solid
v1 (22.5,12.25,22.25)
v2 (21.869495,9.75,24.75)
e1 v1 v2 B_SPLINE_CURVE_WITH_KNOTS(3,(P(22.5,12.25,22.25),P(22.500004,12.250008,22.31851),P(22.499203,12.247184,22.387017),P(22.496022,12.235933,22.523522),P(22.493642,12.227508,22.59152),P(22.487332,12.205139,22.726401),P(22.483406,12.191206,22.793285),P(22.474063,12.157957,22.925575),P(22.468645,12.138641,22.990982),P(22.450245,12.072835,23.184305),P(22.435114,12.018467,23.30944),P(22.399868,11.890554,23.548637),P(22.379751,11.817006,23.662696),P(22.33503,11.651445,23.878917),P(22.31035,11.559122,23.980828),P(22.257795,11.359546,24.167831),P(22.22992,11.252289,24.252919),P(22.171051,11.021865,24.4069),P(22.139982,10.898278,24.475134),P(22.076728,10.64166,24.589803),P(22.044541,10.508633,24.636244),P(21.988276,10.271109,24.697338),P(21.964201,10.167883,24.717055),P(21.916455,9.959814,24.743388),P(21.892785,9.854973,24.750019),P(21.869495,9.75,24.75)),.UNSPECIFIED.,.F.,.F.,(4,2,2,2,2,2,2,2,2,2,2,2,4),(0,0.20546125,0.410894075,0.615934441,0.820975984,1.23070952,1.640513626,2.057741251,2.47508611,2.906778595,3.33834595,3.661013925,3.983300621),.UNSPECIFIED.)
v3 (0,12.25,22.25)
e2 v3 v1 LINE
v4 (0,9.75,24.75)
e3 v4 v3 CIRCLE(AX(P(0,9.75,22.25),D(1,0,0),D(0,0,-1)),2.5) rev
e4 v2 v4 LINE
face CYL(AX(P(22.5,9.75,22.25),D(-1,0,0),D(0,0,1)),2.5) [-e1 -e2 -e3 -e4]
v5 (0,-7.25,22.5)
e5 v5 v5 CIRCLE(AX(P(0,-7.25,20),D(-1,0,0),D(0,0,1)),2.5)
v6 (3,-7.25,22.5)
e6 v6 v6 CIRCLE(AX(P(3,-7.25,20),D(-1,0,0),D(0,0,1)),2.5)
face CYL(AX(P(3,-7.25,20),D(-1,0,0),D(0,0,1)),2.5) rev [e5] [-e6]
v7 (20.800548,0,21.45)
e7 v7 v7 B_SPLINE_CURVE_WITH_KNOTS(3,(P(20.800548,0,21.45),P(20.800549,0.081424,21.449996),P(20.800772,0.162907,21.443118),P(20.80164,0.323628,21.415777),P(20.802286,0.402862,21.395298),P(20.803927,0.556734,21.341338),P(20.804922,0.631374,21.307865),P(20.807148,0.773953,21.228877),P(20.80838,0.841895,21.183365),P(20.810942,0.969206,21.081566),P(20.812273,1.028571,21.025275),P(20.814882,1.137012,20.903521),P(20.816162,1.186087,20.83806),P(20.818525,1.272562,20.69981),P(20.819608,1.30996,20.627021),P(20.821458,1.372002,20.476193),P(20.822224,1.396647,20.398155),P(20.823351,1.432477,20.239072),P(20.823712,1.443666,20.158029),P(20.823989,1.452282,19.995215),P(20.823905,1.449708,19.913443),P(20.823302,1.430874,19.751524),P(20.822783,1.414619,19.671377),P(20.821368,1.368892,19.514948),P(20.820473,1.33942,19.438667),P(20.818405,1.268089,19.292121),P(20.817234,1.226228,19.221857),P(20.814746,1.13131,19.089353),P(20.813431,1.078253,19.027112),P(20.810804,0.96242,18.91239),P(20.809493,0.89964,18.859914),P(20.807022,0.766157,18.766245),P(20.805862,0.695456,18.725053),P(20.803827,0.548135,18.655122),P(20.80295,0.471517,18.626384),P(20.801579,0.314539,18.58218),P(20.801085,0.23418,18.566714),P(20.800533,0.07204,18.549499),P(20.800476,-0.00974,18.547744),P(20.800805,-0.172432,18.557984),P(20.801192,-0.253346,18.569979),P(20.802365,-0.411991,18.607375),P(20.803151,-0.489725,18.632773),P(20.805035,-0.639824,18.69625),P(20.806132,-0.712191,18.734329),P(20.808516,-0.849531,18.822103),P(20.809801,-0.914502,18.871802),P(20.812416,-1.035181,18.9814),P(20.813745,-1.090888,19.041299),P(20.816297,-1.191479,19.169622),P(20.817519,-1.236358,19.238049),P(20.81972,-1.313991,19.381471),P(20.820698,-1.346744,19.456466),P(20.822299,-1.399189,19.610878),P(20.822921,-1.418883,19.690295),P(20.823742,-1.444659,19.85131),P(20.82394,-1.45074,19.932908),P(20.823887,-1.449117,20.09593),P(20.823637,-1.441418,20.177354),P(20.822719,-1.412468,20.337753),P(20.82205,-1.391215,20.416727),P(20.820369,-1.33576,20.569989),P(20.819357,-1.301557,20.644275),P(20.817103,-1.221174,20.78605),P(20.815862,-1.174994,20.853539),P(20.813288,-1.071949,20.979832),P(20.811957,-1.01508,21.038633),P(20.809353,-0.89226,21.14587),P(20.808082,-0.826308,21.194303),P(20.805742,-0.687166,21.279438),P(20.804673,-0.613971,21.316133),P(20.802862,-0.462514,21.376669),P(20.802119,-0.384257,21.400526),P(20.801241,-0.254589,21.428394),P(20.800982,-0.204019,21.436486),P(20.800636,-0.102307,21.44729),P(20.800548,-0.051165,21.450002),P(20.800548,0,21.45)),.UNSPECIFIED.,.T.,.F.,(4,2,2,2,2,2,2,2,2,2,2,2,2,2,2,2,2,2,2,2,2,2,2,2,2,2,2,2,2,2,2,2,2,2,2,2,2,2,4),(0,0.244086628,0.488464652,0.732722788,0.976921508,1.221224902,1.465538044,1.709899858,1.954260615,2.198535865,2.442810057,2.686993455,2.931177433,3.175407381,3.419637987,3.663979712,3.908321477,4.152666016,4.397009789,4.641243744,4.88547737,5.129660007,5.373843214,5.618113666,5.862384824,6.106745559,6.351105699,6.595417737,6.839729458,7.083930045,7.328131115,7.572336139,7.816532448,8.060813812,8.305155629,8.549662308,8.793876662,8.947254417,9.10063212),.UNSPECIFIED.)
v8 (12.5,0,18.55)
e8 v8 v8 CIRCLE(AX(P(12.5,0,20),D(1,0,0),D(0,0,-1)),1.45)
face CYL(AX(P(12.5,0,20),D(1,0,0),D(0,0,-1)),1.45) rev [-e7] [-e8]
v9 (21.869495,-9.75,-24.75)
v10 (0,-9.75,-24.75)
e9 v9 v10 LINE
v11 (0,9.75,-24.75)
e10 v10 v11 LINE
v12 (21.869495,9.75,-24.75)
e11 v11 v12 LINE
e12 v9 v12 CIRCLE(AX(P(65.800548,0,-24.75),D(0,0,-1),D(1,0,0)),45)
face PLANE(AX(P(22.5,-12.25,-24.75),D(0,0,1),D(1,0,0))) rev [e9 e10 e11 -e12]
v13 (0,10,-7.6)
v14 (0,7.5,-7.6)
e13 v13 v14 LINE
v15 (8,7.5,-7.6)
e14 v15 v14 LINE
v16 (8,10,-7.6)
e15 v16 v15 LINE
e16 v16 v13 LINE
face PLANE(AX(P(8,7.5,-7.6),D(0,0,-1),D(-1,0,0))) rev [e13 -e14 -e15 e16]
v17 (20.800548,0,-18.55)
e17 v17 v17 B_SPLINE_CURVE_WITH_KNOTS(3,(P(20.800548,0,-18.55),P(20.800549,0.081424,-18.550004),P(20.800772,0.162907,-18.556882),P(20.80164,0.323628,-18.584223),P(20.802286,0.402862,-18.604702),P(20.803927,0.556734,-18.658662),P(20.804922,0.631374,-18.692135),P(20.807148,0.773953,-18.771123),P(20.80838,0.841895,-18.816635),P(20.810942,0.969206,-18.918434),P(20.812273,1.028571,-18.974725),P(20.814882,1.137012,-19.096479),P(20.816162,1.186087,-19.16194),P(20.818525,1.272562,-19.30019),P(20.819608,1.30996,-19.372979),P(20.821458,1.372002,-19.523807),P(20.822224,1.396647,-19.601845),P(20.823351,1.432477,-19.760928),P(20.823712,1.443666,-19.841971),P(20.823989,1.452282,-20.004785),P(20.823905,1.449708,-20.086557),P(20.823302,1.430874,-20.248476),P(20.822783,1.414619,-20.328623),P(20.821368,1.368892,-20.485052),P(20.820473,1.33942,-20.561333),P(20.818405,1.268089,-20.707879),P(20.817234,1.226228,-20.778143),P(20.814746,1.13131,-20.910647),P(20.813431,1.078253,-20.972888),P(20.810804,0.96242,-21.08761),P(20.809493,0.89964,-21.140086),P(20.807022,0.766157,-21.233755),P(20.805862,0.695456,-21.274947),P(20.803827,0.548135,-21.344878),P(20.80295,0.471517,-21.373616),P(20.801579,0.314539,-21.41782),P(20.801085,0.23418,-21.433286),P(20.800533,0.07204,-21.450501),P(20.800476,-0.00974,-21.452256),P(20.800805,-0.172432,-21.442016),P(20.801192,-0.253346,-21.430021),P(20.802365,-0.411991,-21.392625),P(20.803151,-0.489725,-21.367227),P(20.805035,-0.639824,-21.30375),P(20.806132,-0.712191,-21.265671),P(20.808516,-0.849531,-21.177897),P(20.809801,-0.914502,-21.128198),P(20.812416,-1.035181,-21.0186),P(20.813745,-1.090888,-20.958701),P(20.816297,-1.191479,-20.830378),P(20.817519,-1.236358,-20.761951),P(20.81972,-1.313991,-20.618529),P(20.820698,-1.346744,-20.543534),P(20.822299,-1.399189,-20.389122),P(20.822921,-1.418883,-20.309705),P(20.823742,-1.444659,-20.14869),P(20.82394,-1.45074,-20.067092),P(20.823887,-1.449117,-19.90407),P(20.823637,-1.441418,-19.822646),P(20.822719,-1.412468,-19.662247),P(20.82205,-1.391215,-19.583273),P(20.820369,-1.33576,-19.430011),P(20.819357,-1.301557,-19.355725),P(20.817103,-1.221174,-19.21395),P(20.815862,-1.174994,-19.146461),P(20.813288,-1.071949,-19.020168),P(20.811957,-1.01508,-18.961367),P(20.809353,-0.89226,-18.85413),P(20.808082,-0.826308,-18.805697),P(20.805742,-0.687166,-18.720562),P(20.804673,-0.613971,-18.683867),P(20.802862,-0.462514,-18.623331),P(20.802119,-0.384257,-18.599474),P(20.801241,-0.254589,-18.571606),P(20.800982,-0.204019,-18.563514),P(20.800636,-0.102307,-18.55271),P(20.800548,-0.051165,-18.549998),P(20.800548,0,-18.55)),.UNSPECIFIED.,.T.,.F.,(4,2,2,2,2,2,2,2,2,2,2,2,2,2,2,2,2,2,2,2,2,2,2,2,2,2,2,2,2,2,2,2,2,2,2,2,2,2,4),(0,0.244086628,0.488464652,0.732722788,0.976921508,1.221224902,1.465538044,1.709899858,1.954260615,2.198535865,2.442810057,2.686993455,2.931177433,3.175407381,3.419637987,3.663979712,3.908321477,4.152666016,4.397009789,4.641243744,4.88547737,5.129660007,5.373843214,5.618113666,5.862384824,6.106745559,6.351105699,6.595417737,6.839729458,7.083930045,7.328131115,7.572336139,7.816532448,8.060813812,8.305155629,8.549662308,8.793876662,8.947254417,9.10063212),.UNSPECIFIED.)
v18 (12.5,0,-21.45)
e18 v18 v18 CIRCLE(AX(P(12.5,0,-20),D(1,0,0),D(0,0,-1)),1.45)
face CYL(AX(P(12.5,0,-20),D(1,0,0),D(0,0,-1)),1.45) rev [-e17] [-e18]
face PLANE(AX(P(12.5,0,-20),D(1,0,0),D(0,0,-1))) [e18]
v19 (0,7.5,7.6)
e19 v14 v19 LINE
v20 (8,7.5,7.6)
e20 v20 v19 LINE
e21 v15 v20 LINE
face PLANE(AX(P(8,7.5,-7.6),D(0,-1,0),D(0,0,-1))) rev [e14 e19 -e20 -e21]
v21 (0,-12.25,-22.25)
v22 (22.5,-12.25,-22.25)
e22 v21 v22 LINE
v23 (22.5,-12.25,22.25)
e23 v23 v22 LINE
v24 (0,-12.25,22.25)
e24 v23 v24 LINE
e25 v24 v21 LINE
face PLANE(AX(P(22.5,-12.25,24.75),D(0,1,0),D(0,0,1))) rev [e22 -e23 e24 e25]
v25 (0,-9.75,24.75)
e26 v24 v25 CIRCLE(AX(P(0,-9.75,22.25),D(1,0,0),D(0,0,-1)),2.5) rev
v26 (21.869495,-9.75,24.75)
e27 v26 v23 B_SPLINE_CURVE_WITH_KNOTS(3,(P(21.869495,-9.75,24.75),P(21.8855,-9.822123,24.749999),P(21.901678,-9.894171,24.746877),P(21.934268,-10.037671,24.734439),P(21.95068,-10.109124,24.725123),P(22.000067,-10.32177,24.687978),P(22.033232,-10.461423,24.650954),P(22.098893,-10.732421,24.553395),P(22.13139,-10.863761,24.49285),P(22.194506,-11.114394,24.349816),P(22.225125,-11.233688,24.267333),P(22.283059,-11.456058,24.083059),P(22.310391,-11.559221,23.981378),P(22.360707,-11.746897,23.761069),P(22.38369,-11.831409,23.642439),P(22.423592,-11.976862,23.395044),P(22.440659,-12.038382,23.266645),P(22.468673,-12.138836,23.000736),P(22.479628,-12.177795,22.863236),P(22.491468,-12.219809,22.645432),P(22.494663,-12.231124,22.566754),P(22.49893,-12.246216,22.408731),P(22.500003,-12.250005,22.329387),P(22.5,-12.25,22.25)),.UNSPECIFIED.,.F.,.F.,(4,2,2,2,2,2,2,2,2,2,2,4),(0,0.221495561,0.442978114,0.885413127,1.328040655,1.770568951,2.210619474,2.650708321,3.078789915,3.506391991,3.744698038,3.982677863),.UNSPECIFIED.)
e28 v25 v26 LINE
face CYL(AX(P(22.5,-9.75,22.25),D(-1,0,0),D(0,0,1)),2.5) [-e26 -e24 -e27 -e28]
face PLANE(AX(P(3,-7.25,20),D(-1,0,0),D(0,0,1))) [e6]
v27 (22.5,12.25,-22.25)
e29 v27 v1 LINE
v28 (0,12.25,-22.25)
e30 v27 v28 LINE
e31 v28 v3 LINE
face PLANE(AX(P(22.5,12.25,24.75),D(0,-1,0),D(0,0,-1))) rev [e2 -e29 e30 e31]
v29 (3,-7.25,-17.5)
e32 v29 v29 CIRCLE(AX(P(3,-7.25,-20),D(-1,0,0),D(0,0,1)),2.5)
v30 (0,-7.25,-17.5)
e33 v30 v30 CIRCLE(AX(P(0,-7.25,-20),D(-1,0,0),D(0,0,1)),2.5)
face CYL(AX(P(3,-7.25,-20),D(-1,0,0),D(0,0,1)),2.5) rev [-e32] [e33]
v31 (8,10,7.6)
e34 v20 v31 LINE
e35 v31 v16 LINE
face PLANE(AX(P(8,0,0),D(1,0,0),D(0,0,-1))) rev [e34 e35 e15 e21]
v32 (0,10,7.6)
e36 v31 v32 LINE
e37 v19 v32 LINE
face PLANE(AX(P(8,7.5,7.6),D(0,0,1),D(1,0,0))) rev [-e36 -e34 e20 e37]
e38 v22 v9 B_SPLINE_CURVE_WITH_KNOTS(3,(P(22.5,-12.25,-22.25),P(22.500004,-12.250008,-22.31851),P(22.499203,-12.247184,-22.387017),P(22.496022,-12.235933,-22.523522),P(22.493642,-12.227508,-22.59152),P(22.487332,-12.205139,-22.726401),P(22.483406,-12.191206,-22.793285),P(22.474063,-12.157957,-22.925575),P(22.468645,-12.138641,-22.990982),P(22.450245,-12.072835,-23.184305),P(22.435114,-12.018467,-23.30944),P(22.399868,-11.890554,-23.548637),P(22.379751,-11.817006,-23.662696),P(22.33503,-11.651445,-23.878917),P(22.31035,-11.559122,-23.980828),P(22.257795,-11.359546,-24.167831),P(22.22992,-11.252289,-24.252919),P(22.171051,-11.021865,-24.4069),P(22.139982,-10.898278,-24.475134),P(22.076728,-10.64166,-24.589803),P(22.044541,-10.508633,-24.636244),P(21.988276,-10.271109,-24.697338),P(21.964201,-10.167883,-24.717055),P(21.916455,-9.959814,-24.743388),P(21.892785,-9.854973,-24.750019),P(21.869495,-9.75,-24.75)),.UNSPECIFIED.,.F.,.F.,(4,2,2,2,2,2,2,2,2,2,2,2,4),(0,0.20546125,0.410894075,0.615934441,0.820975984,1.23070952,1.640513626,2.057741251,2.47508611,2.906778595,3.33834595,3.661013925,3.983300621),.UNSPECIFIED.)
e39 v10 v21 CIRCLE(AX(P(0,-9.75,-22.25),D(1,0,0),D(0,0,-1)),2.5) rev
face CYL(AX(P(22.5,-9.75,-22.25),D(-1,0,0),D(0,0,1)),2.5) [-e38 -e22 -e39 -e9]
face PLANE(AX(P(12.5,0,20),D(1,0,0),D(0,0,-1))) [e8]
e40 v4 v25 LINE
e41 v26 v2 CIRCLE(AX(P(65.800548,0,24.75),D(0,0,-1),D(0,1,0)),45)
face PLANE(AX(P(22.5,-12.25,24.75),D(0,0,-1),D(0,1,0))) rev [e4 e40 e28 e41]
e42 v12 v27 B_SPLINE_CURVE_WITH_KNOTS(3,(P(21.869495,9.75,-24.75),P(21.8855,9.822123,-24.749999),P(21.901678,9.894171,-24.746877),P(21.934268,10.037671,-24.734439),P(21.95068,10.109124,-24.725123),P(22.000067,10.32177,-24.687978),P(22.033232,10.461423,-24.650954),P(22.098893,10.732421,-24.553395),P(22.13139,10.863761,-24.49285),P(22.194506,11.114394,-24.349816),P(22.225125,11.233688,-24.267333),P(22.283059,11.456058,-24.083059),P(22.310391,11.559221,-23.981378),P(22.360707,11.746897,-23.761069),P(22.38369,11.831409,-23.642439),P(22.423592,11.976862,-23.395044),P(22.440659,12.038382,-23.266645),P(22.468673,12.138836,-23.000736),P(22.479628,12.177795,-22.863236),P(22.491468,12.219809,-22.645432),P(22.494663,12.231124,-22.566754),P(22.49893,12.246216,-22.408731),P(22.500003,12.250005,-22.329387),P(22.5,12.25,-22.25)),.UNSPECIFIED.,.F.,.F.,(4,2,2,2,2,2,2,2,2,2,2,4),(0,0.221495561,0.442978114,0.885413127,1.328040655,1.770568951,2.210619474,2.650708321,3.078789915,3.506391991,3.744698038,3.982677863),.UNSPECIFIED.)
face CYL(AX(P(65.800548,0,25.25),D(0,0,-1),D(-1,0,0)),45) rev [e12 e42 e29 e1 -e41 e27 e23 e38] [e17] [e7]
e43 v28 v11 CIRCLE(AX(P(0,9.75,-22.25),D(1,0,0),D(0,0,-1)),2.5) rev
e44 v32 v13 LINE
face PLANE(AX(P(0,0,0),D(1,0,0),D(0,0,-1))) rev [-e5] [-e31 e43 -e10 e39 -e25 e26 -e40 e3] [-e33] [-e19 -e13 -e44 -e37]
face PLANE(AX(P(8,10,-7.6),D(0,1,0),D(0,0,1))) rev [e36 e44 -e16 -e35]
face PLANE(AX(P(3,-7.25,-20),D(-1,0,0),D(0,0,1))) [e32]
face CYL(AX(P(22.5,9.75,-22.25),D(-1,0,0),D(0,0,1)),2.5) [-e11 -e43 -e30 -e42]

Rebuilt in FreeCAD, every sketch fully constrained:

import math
import FreeCAD as App
import Part
import Sketcher


def edges_at(feature, points):
    """Names of the edges that pass closest to the given points."""
    edges = feature.Shape.Edges
    near = lambda p: min(range(len(edges)), key=lambda i: edges[i].distToShape(Part.Vertex(*p))[0])
    return sorted({f"Edge{near(p) + 1}" for p in points})


def add_polygon(sketch, points):
    """Adds a closed chain of lines whose ends are joined by coincident constraints."""
    first, n = sketch.GeometryCount, len(points)
    for a, b in zip(points, points[1:] + points[:1]):
        sketch.addGeometry(Part.LineSegment(App.Vector(*a, 0), App.Vector(*b, 0)), False)
    for i in range(n):
        sketch.addConstraint(Sketcher.Constraint("Coincident", first + i, 2, first + (i + 1) % n, 1))

doc = App.newDocument("Part")
body = doc.addObject("PartDesign::Body", "Body")

# Sketch on YZ plane
sketch1 = body.newObject("Sketcher::SketchObject", "Sketch")
sketch1.AttachmentSupport = (doc.getObject("YZ_Plane"), [""])
sketch1.MapMode = "FlatFace"
add_polygon(sketch1, [(12, 25), (-12, 25), (-12, -25), (12, -25)])  # lines 0-3
sketch1.addConstraint(Sketcher.Constraint("Horizontal", 0))
sketch1.addConstraint(Sketcher.Constraint("Vertical", 1))
sketch1.addConstraint(Sketcher.Constraint("Horizontal", 2))
sketch1.addConstraint(Sketcher.Constraint("Vertical", 3))
sketch1.addConstraint(Sketcher.Constraint("Symmetric", 0, 2, 2, 2, -1, 1))
sketch1.addConstraint(Sketcher.Constraint("DistanceX", 0, 2, 0, 1, 24.5))
sketch1.addConstraint(Sketcher.Constraint("DistanceY", 1, 2, 1, 1, 49.5))
pad1 = body.newObject("PartDesign::Pad", "Pad")
pad1.Profile = sketch1
pad1.Length = 22.5

# Sketch on YZ plane
sketch2 = body.newObject("Sketcher::SketchObject", "Sketch001")
sketch2.AttachmentSupport = (doc.getObject("YZ_Plane"), [""])
sketch2.MapMode = "FlatFace"
sketch2.addGeometry(Part.Circle(App.Vector(-7.2, -20, 0), App.Vector(0, 0, 1), 2.5), False)
sketch2.addGeometry(Part.Circle(App.Vector(-7.2, 20, 0), App.Vector(0, 0, 1), 2.5), False)
sketch2.addConstraint(Sketcher.Constraint("Equal", 0, 1))
sketch2.addConstraint(Sketcher.Constraint("Symmetric", 0, 3, 1, 3, -1))
sketch2.addConstraint(Sketcher.Constraint("Diameter", 0, 5.0))
sketch2.addConstraint(Sketcher.Constraint("DistanceY", 0, 3, -1, 1, 20.0))
sketch2.addConstraint(Sketcher.Constraint("DistanceX", 0, 3, -1, 1, 7.25))
pocket1 = body.newObject("PartDesign::Pocket", "Pocket")
pocket1.Profile = sketch2
pocket1.Length = 3
pocket1.Reversed = True

# Sketch on YZ plane
sketch3 = body.newObject("Sketcher::SketchObject", "Sketch002")
sketch3.AttachmentSupport = (doc.getObject("YZ_Plane"), [""])
sketch3.MapMode = "FlatFace"
add_polygon(sketch3, [(10, -7.6), (7.5, -7.6), (7.5, 7.6), (10, 7.6)])  # lines 0-3
sketch3.addConstraint(Sketcher.Constraint("Horizontal", 0))
sketch3.addConstraint(Sketcher.Constraint("Vertical", 1))
sketch3.addConstraint(Sketcher.Constraint("Horizontal", 2))
sketch3.addConstraint(Sketcher.Constraint("Vertical", 3))
sketch3.addConstraint(Sketcher.Constraint("DistanceX", 0, 2, 0, 1, 2.5))
sketch3.addConstraint(Sketcher.Constraint("DistanceY", 1, 1, 1, 2, 15.2))
sketch3.addConstraint(Sketcher.Constraint("DistanceX", -1, 1, 2, 2, 10.0))
sketch3.addConstraint(Sketcher.Constraint("DistanceY", 0, 2, -1, 1, 7.6))
pocket2 = body.newObject("PartDesign::Pocket", "Pocket001")
pocket2.Profile = sketch3
pocket2.Length = 8
pocket2.Reversed = True

# Sketch on XY plane
sketch4 = body.newObject("Sketcher::SketchObject", "Sketch003")
sketch4.AttachmentSupport = (doc.getObject("XY_Plane"), [""])
sketch4.MapMode = "FlatFace"
sketch4.AttachmentOffset = App.Placement(App.Vector(0, 0, -24.75), App.Rotation())
sketch4.addGeometry(Part.LineSegment(App.Vector(22, 12, 0), App.Vector(22, -12, 0)), False)
sketch4.addGeometry(Part.ArcOfCircle(Part.Circle(App.Vector(66, 0, 0), App.Vector(0, 0, 1), 45), math.radians(164), math.radians(196)), False)
sketch4.addConstraint(Sketcher.Constraint("Coincident", 0, 1, 1, 1))
sketch4.addConstraint(Sketcher.Constraint("Coincident", 1, 2, 0, 2))
sketch4.addConstraint(Sketcher.Constraint("Vertical", 0))
sketch4.addConstraint(Sketcher.Constraint("PointOnObject", 1, 3, -1))
sketch4.addConstraint(Sketcher.Constraint("Radius", 1, 45.0))
sketch4.addConstraint(Sketcher.Constraint("DistanceY", 0, 2, 0, 1, 24.5))
sketch4.addConstraint(Sketcher.Constraint("DistanceX", -1, 1, 0, 1, 22.5))
pocket3 = body.newObject("PartDesign::Pocket", "Pocket002")
pocket3.Profile = sketch4
pocket3.Length = 50
pocket3.Reversed = True

# Sketch on YZ plane
sketch5 = body.newObject("Sketcher::SketchObject", "Sketch004")
sketch5.AttachmentSupport = (doc.getObject("YZ_Plane"), [""])
sketch5.MapMode = "FlatFace"
sketch5.AttachmentOffset = App.Placement(App.Vector(0, 0, 22.5), App.Rotation())
sketch5.addGeometry(Part.Circle(App.Vector(0, 20, 0), App.Vector(0, 0, 1), 1.4), False)
sketch5.addGeometry(Part.Circle(App.Vector(0, -20, 0), App.Vector(0, 0, 1), 1.4), False)
sketch5.addConstraint(Sketcher.Constraint("Equal", 0, 1))
sketch5.addConstraint(Sketcher.Constraint("Symmetric", 0, 3, 1, 3, -1, 1))
sketch5.addConstraint(Sketcher.Constraint("PointOnObject", 0, 3, -2))
sketch5.addConstraint(Sketcher.Constraint("Diameter", 0, 2.9))
sketch5.addConstraint(Sketcher.Constraint("DistanceY", -1, 1, 0, 3, 20.0))
pocket4 = body.newObject("PartDesign::Pocket", "Pocket003")
pocket4.Profile = sketch5
pocket4.Length = 10
doc.recompute()

fillet = body.newObject("PartDesign::Fillet", "Fillet")
fillet.Base = (pocket4, edges_at(pocket4, [
    (11.25, 12.25, -24.75),
    (11.25, -12.25, -24.75),
    (11.25, -12.25, 24.75),
    (11.25, 12.25, 24.75),
]))
fillet.Radius = 2.5

doc.recompute()
